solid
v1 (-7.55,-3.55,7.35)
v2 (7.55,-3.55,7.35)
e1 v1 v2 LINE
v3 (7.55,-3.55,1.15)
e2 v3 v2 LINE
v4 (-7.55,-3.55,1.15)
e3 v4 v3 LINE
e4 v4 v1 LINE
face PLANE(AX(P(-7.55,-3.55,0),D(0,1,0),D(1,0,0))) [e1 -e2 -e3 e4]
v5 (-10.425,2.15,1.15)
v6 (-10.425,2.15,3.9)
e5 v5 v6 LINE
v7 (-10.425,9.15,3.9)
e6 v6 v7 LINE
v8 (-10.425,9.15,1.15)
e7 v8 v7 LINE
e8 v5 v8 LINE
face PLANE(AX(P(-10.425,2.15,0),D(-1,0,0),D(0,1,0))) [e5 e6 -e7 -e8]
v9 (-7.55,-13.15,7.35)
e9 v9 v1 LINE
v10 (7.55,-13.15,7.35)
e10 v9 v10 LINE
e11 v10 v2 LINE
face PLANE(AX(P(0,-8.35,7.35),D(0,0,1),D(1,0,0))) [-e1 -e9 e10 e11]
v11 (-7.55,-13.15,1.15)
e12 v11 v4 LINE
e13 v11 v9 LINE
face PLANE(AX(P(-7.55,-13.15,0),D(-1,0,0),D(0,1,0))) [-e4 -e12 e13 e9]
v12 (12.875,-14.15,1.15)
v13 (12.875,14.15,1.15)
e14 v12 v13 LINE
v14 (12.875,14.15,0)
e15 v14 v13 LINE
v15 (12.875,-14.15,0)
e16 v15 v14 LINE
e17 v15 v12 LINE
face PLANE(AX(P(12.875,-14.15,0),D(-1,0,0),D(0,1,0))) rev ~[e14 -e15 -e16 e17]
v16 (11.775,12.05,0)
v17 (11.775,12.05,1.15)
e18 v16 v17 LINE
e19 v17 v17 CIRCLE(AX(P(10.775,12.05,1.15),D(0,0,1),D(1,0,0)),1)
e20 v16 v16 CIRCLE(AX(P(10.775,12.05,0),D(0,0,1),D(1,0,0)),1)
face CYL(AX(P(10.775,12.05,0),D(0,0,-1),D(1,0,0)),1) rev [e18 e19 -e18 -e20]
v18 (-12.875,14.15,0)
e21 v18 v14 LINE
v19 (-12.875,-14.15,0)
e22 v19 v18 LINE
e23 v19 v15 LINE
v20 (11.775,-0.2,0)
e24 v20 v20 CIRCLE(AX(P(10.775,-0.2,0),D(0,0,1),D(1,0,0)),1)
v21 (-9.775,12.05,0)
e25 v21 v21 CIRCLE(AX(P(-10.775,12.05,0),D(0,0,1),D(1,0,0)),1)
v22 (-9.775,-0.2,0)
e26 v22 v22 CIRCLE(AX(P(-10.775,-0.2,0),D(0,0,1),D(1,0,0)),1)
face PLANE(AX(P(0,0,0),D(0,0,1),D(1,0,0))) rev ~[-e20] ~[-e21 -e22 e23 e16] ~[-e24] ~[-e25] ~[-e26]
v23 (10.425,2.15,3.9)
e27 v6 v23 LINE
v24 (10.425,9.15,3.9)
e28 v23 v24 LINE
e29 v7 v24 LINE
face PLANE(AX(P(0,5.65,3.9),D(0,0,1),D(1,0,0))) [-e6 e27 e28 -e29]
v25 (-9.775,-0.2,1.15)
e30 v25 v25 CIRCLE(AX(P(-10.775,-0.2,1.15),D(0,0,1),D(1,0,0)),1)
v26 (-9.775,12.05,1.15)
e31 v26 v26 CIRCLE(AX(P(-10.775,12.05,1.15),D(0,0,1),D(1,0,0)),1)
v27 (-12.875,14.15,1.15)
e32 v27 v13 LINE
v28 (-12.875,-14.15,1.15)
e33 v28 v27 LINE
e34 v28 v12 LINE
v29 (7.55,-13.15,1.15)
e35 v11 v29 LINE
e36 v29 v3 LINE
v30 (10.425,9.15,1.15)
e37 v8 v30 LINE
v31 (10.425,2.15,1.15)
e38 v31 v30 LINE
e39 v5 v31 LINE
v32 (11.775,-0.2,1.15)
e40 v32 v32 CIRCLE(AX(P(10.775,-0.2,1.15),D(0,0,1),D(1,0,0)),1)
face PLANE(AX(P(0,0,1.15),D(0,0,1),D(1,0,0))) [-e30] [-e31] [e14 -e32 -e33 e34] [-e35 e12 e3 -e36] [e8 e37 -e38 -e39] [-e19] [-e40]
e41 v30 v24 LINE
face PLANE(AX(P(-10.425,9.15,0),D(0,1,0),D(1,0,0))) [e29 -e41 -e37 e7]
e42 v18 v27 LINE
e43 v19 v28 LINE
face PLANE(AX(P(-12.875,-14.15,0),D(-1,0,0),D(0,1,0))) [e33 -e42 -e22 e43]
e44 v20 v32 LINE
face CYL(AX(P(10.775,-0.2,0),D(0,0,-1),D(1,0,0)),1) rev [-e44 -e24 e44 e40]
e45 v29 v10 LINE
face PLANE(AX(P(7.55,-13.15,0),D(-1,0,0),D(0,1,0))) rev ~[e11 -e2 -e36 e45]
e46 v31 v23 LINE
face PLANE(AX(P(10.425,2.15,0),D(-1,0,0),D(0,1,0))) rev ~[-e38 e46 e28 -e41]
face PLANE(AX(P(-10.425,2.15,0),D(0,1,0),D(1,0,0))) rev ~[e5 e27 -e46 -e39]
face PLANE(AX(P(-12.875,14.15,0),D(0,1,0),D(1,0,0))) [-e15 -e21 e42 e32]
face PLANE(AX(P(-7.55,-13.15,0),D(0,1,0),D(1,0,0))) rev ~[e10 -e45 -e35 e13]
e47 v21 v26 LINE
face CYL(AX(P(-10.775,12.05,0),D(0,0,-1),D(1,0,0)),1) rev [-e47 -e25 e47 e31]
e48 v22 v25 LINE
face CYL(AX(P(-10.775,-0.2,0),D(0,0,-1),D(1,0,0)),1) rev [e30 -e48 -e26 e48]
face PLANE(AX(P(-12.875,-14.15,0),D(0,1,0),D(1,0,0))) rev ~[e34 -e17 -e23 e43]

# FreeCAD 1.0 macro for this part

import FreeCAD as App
import Part
import Sketcher

doc = App.newDocument("Part")
body = doc.addObject("PartDesign::Body", "Body")

sketch1 = body.newObject("Sketcher::SketchObject", "Sketch")
sketch1.AttachmentSupport = (doc.getObject("XY_Plane"), [""])
sketch1.MapMode = "FlatFace"
sketch1.addGeometry([
    Part.LineSegment(App.Vector(-12.9, 14.2, 0), App.Vector(-12.9, -14.2, 0)),
    Part.LineSegment(App.Vector(-12.9, -14.2, 0), App.Vector(12.9, -14.2, 0)),
    Part.LineSegment(App.Vector(12.9, -14.2, 0), App.Vector(12.9, 14.2, 0)),
    Part.LineSegment(App.Vector(12.9, 14.2, 0), App.Vector(-12.9, 14.2, 0)),
    Part.Circle(App.Vector(-10.8, -0.2, 0), App.Vector(0, 0, 1), 1),
    Part.LineSegment(App.Vector(7.5, -13.2, 0), App.Vector(-7.5, -13.2, 0)),
    Part.LineSegment(App.Vector(-7.5, -13.2, 0), App.Vector(-7.5, -3.5, 0)),
    Part.LineSegment(App.Vector(-7.5, -3.5, 0), App.Vector(7.5, -3.5, 0)),
    Part.LineSegment(App.Vector(7.5, -3.5, 0), App.Vector(7.5, -13.2, 0)),
    Part.Circle(App.Vector(10.8, -0.2, 0), App.Vector(0, 0, 1), 1),
    Part.Circle(App.Vector(-10.8, 12.1, 0), App.Vector(0, 0, 1), 1),
    Part.LineSegment(App.Vector(10.4, 2.1, 0), App.Vector(-10.4, 2.1, 0)),
    Part.LineSegment(App.Vector(-10.4, 2.1, 0), App.Vector(-10.4, 9.2, 0)),
    Part.LineSegment(App.Vector(-10.4, 9.2, 0), App.Vector(10.4, 9.2, 0)),
    Part.LineSegment(App.Vector(10.4, 9.2, 0), App.Vector(10.4, 2.1, 0)),
    Part.Circle(App.Vector(10.8, 12.1, 0), App.Vector(0, 0, 1), 1),
], False)
sketch1.addConstraint([
    Sketcher.Constraint("Coincident", 0, 2, 1, 1),
    Sketcher.Constraint("Coincident", 1, 2, 2, 1),
    Sketcher.Constraint("Coincident", 2, 2, 3, 1),
    Sketcher.Constraint("Coincident", 3, 2, 0, 1),
    Sketcher.Constraint("Coincident", 5, 2, 6, 1),
    Sketcher.Constraint("Coincident", 6, 2, 7, 1),
    Sketcher.Constraint("Coincident", 7, 2, 8, 1),
    Sketcher.Constraint("Coincident", 8, 2, 5, 1),
    Sketcher.Constraint("Coincident", 11, 2, 12, 1),
    Sketcher.Constraint("Coincident", 12, 2, 13, 1),
    Sketcher.Constraint("Coincident", 13, 2, 14, 1),
    Sketcher.Constraint("Coincident", 14, 2, 11, 1),
    Sketcher.Constraint("Vertical", 0),
    Sketcher.Constraint("Horizontal", 1),
    Sketcher.Constraint("Vertical", 2),
    Sketcher.Constraint("Horizontal", 3),
    Sketcher.Constraint("Horizontal", 5),
    Sketcher.Constraint("Vertical", 6),
    Sketcher.Constraint("Horizontal", 7),
    Sketcher.Constraint("Vertical", 8),
    Sketcher.Constraint("Horizontal", 11),
    Sketcher.Constraint("Vertical", 12),
    Sketcher.Constraint("Horizontal", 13),
    Sketcher.Constraint("Vertical", 14),
    Sketcher.Constraint("Equal", 4, 9),
    Sketcher.Constraint("Equal", 9, 10),
    Sketcher.Constraint("Equal", 10, 15),
    Sketcher.Constraint("Symmetric", 0, 2, 2, 2, -1, 1),
    Sketcher.Constraint("Symmetric", 4, 3, 9, 3, -2),
    Sketcher.Constraint("Symmetric", 10, 3, 15, 3, -2),
    Sketcher.Constraint("Vertical", 4, 3, 10, 3),
    Sketcher.Constraint("Diameter", 4, 2.0),
    Sketcher.Constraint("DistanceY", 12, 1, 12, 2, 7.0),
    Sketcher.Constraint("DistanceX", 5, 2, 5, 1, 15.1),
    Sketcher.Constraint("DistanceY", 0, 2, 0, 1, 28.3),
    Sketcher.Constraint("DistanceY", 6, 1, 6, 2, 9.6),
    Sketcher.Constraint("DistanceY", 0, 2, 5, 2, 1.0),
    Sketcher.Constraint("DistanceY", 11, 2, 3, 2, 12.0),
    Sketcher.Constraint("DistanceX", 1, 1, 1, 2, 25.75),
    Sketcher.Constraint("DistanceX", 11, 2, 11, 1, 20.85),
    Sketcher.Constraint("DistanceY", 4, 3, -1, 1, 0.2),
    Sketcher.Constraint("DistanceX", 0, 2, 4, 3, 2.1),
    Sketcher.Constraint("DistanceY", 0, 2, 10, 3, 26.2),
    Sketcher.Constraint("DistanceX", 5, 2, -1, 1, 7.55),
    Sketcher.Constraint("DistanceX", 4, 3, 11, 2, 0.35),
])
pad1 = body.newObject("PartDesign::Pad", "Pad")
pad1.Profile = sketch1
pad1.Length = 1.15

sketch2 = body.newObject("Sketcher::SketchObject", "Sketch001")
sketch2.AttachmentSupport = (doc.getObject("XY_Plane"), [""])
sketch2.MapMode = "FlatFace"
sketch2.addGeometry([
    Part.LineSegment(App.Vector(-10, 9, 0), App.Vector(-10, 2, 0)),
    Part.LineSegment(App.Vector(-10, 2, 0), App.Vector(10, 2, 0)),
    Part.LineSegment(App.Vector(10, 2, 0), App.Vector(10, 9, 0)),
    Part.LineSegment(App.Vector(10, 9, 0), App.Vector(-10, 9, 0)),
], False)
sketch2.addConstraint([
    Sketcher.Constraint("Coincident", 0, 2, 1, 1),
    Sketcher.Constraint("Coincident", 1, 2, 2, 1),
    Sketcher.Constraint("Coincident", 2, 2, 3, 1),
    Sketcher.Constraint("Coincident", 3, 2, 0, 1),
    Sketcher.Constraint("Vertical", 0),
    Sketcher.Constraint("Horizontal", 1),
    Sketcher.Constraint("Vertical", 2),
    Sketcher.Constraint("Horizontal", 3),
    Sketcher.Constraint("DistanceY", 0, 2, 0, 1, 7.0),
    Sketcher.Constraint("DistanceX", 1, 1, 1, 2, 20.85),
    Sketcher.Constraint("DistanceY", -1, 1, 0, 2, 2.15),
    Sketcher.Constraint("DistanceX", 0, 2, -1, 1, 10.425),
])
pad2 = body.newObject("PartDesign::Pad", "Pad001")
pad2.Profile = sketch2
pad2.Length = 3.9

sketch3 = body.newObject("Sketcher::SketchObject", "Sketch002")
sketch3.AttachmentSupport = (doc.getObject("XY_Plane"), [""])
sketch3.MapMode = "FlatFace"
sketch3.addGeometry([
    Part.LineSegment(App.Vector(-8, -4, 0), App.Vector(-8, -13, 0)),
    Part.LineSegment(App.Vector(-8, -13, 0), App.Vector(8, -13, 0)),
    Part.LineSegment(App.Vector(8, -13, 0), App.Vector(8, -4, 0)),
    Part.LineSegment(App.Vector(8, -4, 0), App.Vector(-8, -4, 0)),
], False)
sketch3.addConstraint([
    Sketcher.Constraint("Coincident", 0, 2, 1, 1),
    Sketcher.Constraint("Coincident", 1, 2, 2, 1),
    Sketcher.Constraint("Coincident", 2, 2, 3, 1),
    Sketcher.Constraint("Coincident", 3, 2, 0, 1),
    Sketcher.Constraint("Vertical", 0),
    Sketcher.Constraint("Horizontal", 1),
    Sketcher.Constraint("Vertical", 2),
    Sketcher.Constraint("Horizontal", 3),
    Sketcher.Constraint("DistanceX", 1, 1, 1, 2, 15.1),
    Sketcher.Constraint("DistanceY", 0, 2, 0, 1, 9.6),
    Sketcher.Constraint("DistanceX", 0, 2, -1, 1, 7.55),
    Sketcher.Constraint("DistanceY", 0, 2, -1, 1, 13.15),
])
pad3 = body.newObject("PartDesign::Pad", "Pad002")
pad3.Profile = sketch3
pad3.Length = 7.35

doc.recompute()
